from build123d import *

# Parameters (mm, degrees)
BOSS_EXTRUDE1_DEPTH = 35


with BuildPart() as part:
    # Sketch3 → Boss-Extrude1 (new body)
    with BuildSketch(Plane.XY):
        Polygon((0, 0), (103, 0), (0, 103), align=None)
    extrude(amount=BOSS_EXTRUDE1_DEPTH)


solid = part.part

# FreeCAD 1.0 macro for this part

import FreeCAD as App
import Part
import Sketcher

V = App.Vector
Q = App.Units.Quantity

doc = App.newDocument("Part")
body = doc.addObject("PartDesign::Body", "Body")

# Sketch on XY plane
sketch1 = body.newObject("Sketcher::SketchObject", "Sketch")
sketch1.AttachmentSupport = (doc.getObject("XY_Plane"), [""])
sketch1.MapMode = "FlatFace"
sketch1.addGeometry(Part.LineSegment(V(0, 0, 0), V(103, 0, 0)), False)
sketch1.addGeometry(Part.LineSegment(V(103, 0, 0), V(0, 103, 0)), False)
sketch1.addGeometry(Part.LineSegment(V(0, 103, 0), V(0, 0, 0)), False)
sketch1.addConstraint(Sketcher.Constraint("Coincident", 0, 2, 1, 1))
sketch1.addConstraint(Sketcher.Constraint("Coincident", 1, 2, 2, 1))
sketch1.addConstraint(Sketcher.Constraint("Coincident", 2, 2, 0, 1))
sketch1.addConstraint(Sketcher.Constraint("Horizontal", 0))
sketch1.addConstraint(Sketcher.Constraint("Vertical", 2))
sketch1.addConstraint(Sketcher.Constraint("Coincident", 2, 2, -1, 1))
sketch1.addConstraint(Sketcher.Constraint("Equal", 0, 2))
sketch1.addConstraint(Sketcher.Constraint("DistanceX", 0, 1, 0, 2, Q("103 mm")))
pad1 = body.newObject("PartDesign::Pad", "Pad")
pad1.Profile = sketch1
pad1.Length = 35

doc.recompute()
